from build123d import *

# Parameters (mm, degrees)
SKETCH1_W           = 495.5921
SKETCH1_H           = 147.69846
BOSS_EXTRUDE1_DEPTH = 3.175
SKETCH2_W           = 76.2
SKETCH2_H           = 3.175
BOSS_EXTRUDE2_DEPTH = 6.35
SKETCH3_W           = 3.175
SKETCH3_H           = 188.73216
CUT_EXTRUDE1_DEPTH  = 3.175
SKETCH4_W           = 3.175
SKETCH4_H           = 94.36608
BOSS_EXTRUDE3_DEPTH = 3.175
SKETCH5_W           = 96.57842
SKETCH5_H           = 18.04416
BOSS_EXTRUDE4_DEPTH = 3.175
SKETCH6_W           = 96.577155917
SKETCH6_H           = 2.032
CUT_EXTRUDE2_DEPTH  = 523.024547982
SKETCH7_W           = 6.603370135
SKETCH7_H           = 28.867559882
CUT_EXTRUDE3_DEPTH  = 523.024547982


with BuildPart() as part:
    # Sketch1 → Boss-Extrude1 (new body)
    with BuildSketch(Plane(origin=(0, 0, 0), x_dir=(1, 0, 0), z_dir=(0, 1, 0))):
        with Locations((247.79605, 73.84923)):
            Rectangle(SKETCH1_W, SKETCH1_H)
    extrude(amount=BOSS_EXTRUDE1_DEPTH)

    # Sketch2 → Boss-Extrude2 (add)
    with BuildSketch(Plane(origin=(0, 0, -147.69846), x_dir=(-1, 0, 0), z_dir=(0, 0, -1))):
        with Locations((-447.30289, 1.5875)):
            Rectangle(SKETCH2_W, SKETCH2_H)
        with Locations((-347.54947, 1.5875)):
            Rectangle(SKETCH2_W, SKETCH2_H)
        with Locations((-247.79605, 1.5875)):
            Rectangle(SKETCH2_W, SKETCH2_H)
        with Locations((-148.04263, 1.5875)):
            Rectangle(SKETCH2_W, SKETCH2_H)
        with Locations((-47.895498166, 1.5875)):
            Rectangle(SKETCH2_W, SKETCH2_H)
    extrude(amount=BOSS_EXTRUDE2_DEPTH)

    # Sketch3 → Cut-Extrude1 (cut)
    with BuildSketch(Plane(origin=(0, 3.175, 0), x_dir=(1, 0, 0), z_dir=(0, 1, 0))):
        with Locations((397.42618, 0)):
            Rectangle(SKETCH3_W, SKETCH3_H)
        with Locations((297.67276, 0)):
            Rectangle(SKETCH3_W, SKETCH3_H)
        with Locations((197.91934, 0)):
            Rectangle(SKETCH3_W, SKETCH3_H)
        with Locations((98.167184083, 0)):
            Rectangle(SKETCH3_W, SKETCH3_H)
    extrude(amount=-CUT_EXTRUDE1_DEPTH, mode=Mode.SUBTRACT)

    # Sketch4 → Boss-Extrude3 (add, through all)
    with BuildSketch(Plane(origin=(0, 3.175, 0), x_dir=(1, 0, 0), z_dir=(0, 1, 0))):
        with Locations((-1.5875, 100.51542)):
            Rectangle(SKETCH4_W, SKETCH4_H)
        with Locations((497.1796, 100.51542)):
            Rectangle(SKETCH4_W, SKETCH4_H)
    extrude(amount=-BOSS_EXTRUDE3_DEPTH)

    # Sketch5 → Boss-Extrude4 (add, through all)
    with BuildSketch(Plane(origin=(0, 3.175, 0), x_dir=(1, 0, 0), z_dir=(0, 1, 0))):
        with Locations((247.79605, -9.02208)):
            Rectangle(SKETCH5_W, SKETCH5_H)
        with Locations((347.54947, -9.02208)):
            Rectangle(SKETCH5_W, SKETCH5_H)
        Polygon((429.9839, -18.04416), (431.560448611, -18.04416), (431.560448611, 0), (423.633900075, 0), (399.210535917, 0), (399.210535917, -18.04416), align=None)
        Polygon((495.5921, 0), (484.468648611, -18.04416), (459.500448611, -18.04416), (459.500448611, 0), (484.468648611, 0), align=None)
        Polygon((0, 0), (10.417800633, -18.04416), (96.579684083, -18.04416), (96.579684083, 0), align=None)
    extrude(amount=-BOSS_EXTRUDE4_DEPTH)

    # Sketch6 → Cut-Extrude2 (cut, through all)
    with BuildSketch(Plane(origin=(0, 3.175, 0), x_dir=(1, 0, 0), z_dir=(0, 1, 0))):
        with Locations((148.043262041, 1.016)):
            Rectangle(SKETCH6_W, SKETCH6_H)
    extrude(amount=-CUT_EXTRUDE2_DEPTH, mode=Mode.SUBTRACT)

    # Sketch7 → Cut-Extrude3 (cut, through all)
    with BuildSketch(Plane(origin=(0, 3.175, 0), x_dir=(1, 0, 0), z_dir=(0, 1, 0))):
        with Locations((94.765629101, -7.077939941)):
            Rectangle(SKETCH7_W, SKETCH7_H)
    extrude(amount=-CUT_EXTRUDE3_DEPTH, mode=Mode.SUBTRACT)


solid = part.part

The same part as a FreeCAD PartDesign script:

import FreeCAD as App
import Part
import Sketcher

V = App.Vector
Q = App.Units.Quantity


def add_polygon(sketch, points):
    """Adds a closed chain of lines whose ends are joined by coincident constraints."""
    first, n = sketch.GeometryCount, len(points)
    for a, b in zip(points, points[1:] + points[:1]):
        sketch.addGeometry(Part.LineSegment(App.Vector(*a, 0), App.Vector(*b, 0)), False)
    for i in range(n):
        sketch.addConstraint(Sketcher.Constraint("Coincident", first + i, 2, first + (i + 1) % n, 1))

doc = App.newDocument("Part")
body = doc.addObject("PartDesign::Body", "Body")

sketch1 = body.newObject("Sketcher::SketchObject", "Sketch")
sketch1.AttachmentSupport = (doc.getObject("XZ_Plane"), [""])
sketch1.MapMode = "FlatFace"
add_polygon(sketch1, [(0, -147.69846), (0, 0), (495.5921, 0), (495.5921, -147.69846)])
sketch1.addConstraint(Sketcher.Constraint("Vertical", 0))
sketch1.addConstraint(Sketcher.Constraint("Horizontal", 1))
sketch1.addConstraint(Sketcher.Constraint("Vertical", 2))
sketch1.addConstraint(Sketcher.Constraint("Horizontal", 3))
sketch1.addConstraint(Sketcher.Constraint("Coincident", 0, 2, -1, 1))
sketch1.addConstraint(Sketcher.Constraint("DistanceX", 1, 1, 1, 2, Q("19.5115 in")))
sketch1.addConstraint(Sketcher.Constraint("DistanceY", 0, 1, 0, 2, Q("5.8149 in")))
pad1 = body.newObject("PartDesign::Pad", "Pad")
pad1.Profile = sketch1
pad1.Length = Q("0.125 in")
pad1.Reversed = True

sketch2 = body.newObject("Sketcher::SketchObject", "Sketch001")
sketch2.AttachmentSupport = (doc.getObject("XY_Plane"), [""])
sketch2.MapMode = "FlatFace"
sketch2.AttachmentOffset = App.Placement(V(0, 0, -5.8149 * 25.4), App.Rotation())
add_polygon(sketch2, [(485.40289, 3.175), (485.40289, 0), (409.20289, 0), (409.20289, 3.175)])
add_polygon(sketch2, [(385.64947, 3.175), (385.64947, 0), (309.44947, 0), (309.44947, 3.175)])
add_polygon(sketch2, [(285.89605, 3.175), (285.89605, 0), (209.69605, 0), (209.69605, 3.175)])
add_polygon(sketch2, [(186.14263, 3.175), (186.14263, 0), (109.94263, 0), (109.94263, 3.175)])
add_polygon(sketch2, [(85.995498, 3.175), (85.995498, 0), (9.795498, 0), (9.795498, 3.175)])
sketch2.addConstraint(Sketcher.Constraint("Vertical", 0))
sketch2.addConstraint(Sketcher.Constraint("Horizontal", 1))
sketch2.addConstraint(Sketcher.Constraint("Vertical", 2))
sketch2.addConstraint(Sketcher.Constraint("Horizontal", 3))
sketch2.addConstraint(Sketcher.Constraint("Vertical", 4))
sketch2.addConstraint(Sketcher.Constraint("Horizontal", 5))
sketch2.addConstraint(Sketcher.Constraint("Vertical", 6))
sketch2.addConstraint(Sketcher.Constraint("Horizontal", 7))
sketch2.addConstraint(Sketcher.Constraint("Vertical", 8))
sketch2.addConstraint(Sketcher.Constraint("Horizontal", 9))
sketch2.addConstraint(Sketcher.Constraint("Vertical", 10))
sketch2.addConstraint(Sketcher.Constraint("Horizontal", 11))
sketch2.addConstraint(Sketcher.Constraint("Vertical", 12))
sketch2.addConstraint(Sketcher.Constraint("Horizontal", 13))
sketch2.addConstraint(Sketcher.Constraint("Vertical", 14))
sketch2.addConstraint(Sketcher.Constraint("Horizontal", 15))
sketch2.addConstraint(Sketcher.Constraint("Vertical", 16))
sketch2.addConstraint(Sketcher.Constraint("Horizontal", 17))
sketch2.addConstraint(Sketcher.Constraint("Vertical", 18))
sketch2.addConstraint(Sketcher.Constraint("Horizontal", 19))
sketch2.addConstraint(Sketcher.Constraint("PointOnObject", 0, 2, -1))
sketch2.addConstraint(Sketcher.Constraint("PointOnObject", 4, 2, -1))
sketch2.addConstraint(Sketcher.Constraint("PointOnObject", 8, 2, -1))
sketch2.addConstraint(Sketcher.Constraint("PointOnObject", 12, 2, -1))
sketch2.addConstraint(Sketcher.Constraint("PointOnObject", 16, 2, -1))
sketch2.addConstraint(Sketcher.Constraint("Horizontal", 3, 2, 6, 2))
sketch2.addConstraint(Sketcher.Constraint("Horizontal", 7, 2, 10, 2))
sketch2.addConstraint(Sketcher.Constraint("Horizontal", 11, 2, 14, 2))
sketch2.addConstraint(Sketcher.Constraint("Horizontal", 15, 2, 18, 2))
sketch2.addConstraint(Sketcher.Constraint("Equal", 3, 5))
sketch2.addConstraint(Sketcher.Constraint("Equal", 7, 9))
sketch2.addConstraint(Sketcher.Constraint("Equal", 11, 13))
sketch2.addConstraint(Sketcher.Constraint("Equal", 15, 17))
sketch2.addConstraint(Sketcher.Constraint("DistanceX", 1, 2, 1, 1, Q("3 in")))
sketch2.addConstraint(Sketcher.Constraint("DistanceY", 0, 2, 0, 1, Q("0.125 in")))
sketch2.addConstraint(Sketcher.Constraint("DistanceX", 4, 2, 1, 2, Q("0.9273 in")))
sketch2.addConstraint(Sketcher.Constraint("DistanceX", 8, 2, 5, 2, Q("0.9273 in")))
sketch2.addConstraint(Sketcher.Constraint("DistanceX", 12, 2, 9, 2, Q("0.9273 in")))
sketch2.addConstraint(Sketcher.Constraint("DistanceX", -1, 1, 16, 2, Q("85.995498 mm")))
sketch2.addConstraint(Sketcher.Constraint("DistanceX", -1, 1, 0, 2, Q("485.40289 mm")))
pad2 = body.newObject("PartDesign::Pad", "Pad001")
pad2.Profile = sketch2
pad2.Length = Q("0.25 in")
pad2.Reversed = True

sketch3 = body.newObject("Sketcher::SketchObject", "Sketch002")
sketch3.AttachmentSupport = (doc.getObject("XZ_Plane"), [""])
sketch3.MapMode = "FlatFace"
sketch3.AttachmentOffset = App.Placement(V(0, 0, -0.125 * 25.4), App.Rotation())
add_polygon(sketch3, [(395.83868, -94.36608), (395.83868, 94.36608), (399.01368, 94.36608), (399.01368, -94.36608)])
add_polygon(sketch3, [(296.08526, -94.36608), (296.08526, 94.36608), (299.26026, 94.36608), (299.26026, -94.36608)])
add_polygon(sketch3, [(196.33184, -94.36608), (196.33184, 94.36608), (199.50684, 94.36608), (199.50684, -94.36608)])
add_polygon(sketch3, [(96.579684, -94.36608), (96.579684, 94.36608), (99.754684, 94.36608), (99.754684, -94.36608)])
sketch3.addConstraint(Sketcher.Constraint("Vertical", 0))
sketch3.addConstraint(Sketcher.Constraint("Horizontal", 1))
sketch3.addConstraint(Sketcher.Constraint("Vertical", 2))
sketch3.addConstraint(Sketcher.Constraint("Horizontal", 3))
sketch3.addConstraint(Sketcher.Constraint("Vertical", 4))
sketch3.addConstraint(Sketcher.Constraint("Horizontal", 5))
sketch3.addConstraint(Sketcher.Constraint("Vertical", 6))
sketch3.addConstraint(Sketcher.Constraint("Horizontal", 7))
sketch3.addConstraint(Sketcher.Constraint("Vertical", 8))
sketch3.addConstraint(Sketcher.Constraint("Horizontal", 9))
sketch3.addConstraint(Sketcher.Constraint("Vertical", 10))
sketch3.addConstraint(Sketcher.Constraint("Horizontal", 11))
sketch3.addConstraint(Sketcher.Constraint("Vertical", 12))
sketch3.addConstraint(Sketcher.Constraint("Horizontal", 13))
sketch3.addConstraint(Sketcher.Constraint("Vertical", 14))
sketch3.addConstraint(Sketcher.Constraint("Horizontal", 15))
sketch3.addConstraint(Sketcher.Constraint("Horizontal", 1, 2, 4, 2))
sketch3.addConstraint(Sketcher.Constraint("Horizontal", 3, 2, 6, 2))
sketch3.addConstraint(Sketcher.Constraint("Horizontal", 5, 2, 8, 2))
sketch3.addConstraint(Sketcher.Constraint("Horizontal", 7, 2, 10, 2))
sketch3.addConstraint(Sketcher.Constraint("Horizontal", 9, 2, 12, 2))
sketch3.addConstraint(Sketcher.Constraint("Horizontal", 11, 2, 14, 2))
sketch3.addConstraint(Sketcher.Constraint("Equal", 3, 5))
sketch3.addConstraint(Sketcher.Constraint("Equal", 7, 9))
sketch3.addConstraint(Sketcher.Constraint("Equal", 11, 13))
sketch3.addConstraint(Sketcher.Constraint("DistanceX", 1, 1, 1, 2, Q("0.125 in")))
sketch3.addConstraint(Sketcher.Constraint("DistanceY", 0, 1, 0, 2, Q("7.4304 in")))
sketch3.addConstraint(Sketcher.Constraint("DistanceX", -1, 1, 0, 2, Q("15.5842 in")))
sketch3.addConstraint(Sketcher.Constraint("DistanceY", -1, 1, 0, 2, Q("3.7152 in")))
sketch3.addConstraint(Sketcher.Constraint("DistanceX", -1, 1, 4, 2, Q("11.6569 in")))
sketch3.addConstraint(Sketcher.Constraint("DistanceX", -1, 1, 8, 2, Q("7.7296 in")))
sketch3.addConstraint(Sketcher.Constraint("DistanceX", -1, 1, 12, 2, Q("96.579684 mm")))
pocket1 = body.newObject("PartDesign::Pocket", "Pocket")
pocket1.Profile = sketch3
pocket1.Length = Q("0.125 in")
pocket1.Reversed = True

sketch4 = body.newObject("Sketcher::SketchObject", "Sketch003")
sketch4.AttachmentSupport = (doc.getObject("XZ_Plane"), [""])
sketch4.MapMode = "FlatFace"
sketch4.AttachmentOffset = App.Placement(V(0, 0, -0.125 * 25.4), App.Rotation())
add_polygon(sketch4, [(-3.175, -147.69846), (-3.175, -53.33238), (0, -53.33238), (0, -147.69846)])
add_polygon(sketch4, [(495.5921, -147.69846), (495.5921, -53.33238), (498.7671, -53.33238), (498.7671, -147.69846)])
sketch4.addConstraint(Sketcher.Constraint("Vertical", 0))
sketch4.addConstraint(Sketcher.Constraint("Horizontal", 1))
sketch4.addConstraint(Sketcher.Constraint("Vertical", 2))
sketch4.addConstraint(Sketcher.Constraint("Horizontal", 3))
sketch4.addConstraint(Sketcher.Constraint("Vertical", 4))
sketch4.addConstraint(Sketcher.Constraint("Horizontal", 5))
sketch4.addConstraint(Sketcher.Constraint("Vertical", 6))
sketch4.addConstraint(Sketcher.Constraint("Horizontal", 7))
sketch4.addConstraint(Sketcher.Constraint("PointOnObject", 1, 2, -2))
sketch4.addConstraint(Sketcher.Constraint("Horizontal", 1, 2, 4, 2))
sketch4.addConstraint(Sketcher.Constraint("Horizontal", 3, 2, 6, 2))
sketch4.addConstraint(Sketcher.Constraint("Equal", 3, 5))
sketch4.addConstraint(Sketcher.Constraint("DistanceX", 1, 1, 1, 2, Q("0.125 in")))
sketch4.addConstraint(Sketcher.Constraint("DistanceY", 0, 1, 0, 2, Q("3.7152 in")))
sketch4.addConstraint(Sketcher.Constraint("DistanceY", 0, 2, -1, 1, Q("2.0997 in")))
sketch4.addConstraint(Sketcher.Constraint("DistanceX", -1, 1, 4, 2, Q("19.5115 in")))
pad3 = body.newObject("PartDesign::Pad", "Pad002")
pad3.Profile = sketch4
pad3.Type = "UpToLast"

sketch5 = body.newObject("Sketcher::SketchObject", "Sketch004")
sketch5.AttachmentSupport = (doc.getObject("XZ_Plane"), [""])
sketch5.MapMode = "FlatFace"
sketch5.AttachmentOffset = App.Placement(V(0, 0, -0.125 * 25.4), App.Rotation())
add_polygon(sketch5, [(199.50684, 0), (199.50684, 18.04416), (296.08526, 18.04416), (296.08526, 0)])
add_polygon(sketch5, [(299.26026, 0), (299.26026, 18.04416), (395.83868, 18.04416), (395.83868, 0)])
add_polygon(sketch5, [(431.560449, 18.04416), (431.560449, 0), (399.210536, 0), (399.210536, 18.04416)])
add_polygon(sketch5, [(484.468649, 18.04416), (495.5921, 0), (459.500449, 0), (459.500449, 18.04416)])
add_polygon(sketch5, [(0, 0), (10.417801, 18.04416), (96.579684, 18.04416), (96.579684, 0)])
sketch5.addConstraint(Sketcher.Constraint("Vertical", 0))
sketch5.addConstraint(Sketcher.Constraint("Horizontal", 1))
sketch5.addConstraint(Sketcher.Constraint("Vertical", 2))
sketch5.addConstraint(Sketcher.Constraint("Horizontal", 3))
sketch5.addConstraint(Sketcher.Constraint("Vertical", 4))
sketch5.addConstraint(Sketcher.Constraint("Horizontal", 5))
sketch5.addConstraint(Sketcher.Constraint("Vertical", 6))
sketch5.addConstraint(Sketcher.Constraint("Horizontal", 7))
sketch5.addConstraint(Sketcher.Constraint("Vertical", 8))
sketch5.addConstraint(Sketcher.Constraint("Horizontal", 9))
sketch5.addConstraint(Sketcher.Constraint("Vertical", 10))
sketch5.addConstraint(Sketcher.Constraint("Horizontal", 11))
sketch5.addConstraint(Sketcher.Constraint("Horizontal", 13))
sketch5.addConstraint(Sketcher.Constraint("Vertical", 14))
sketch5.addConstraint(Sketcher.Constraint("Horizontal", 15))
sketch5.addConstraint(Sketcher.Constraint("Horizontal", 17))
sketch5.addConstraint(Sketcher.Constraint("Vertical", 18))
sketch5.addConstraint(Sketcher.Constraint("Horizontal", 19))
sketch5.addConstraint(Sketcher.Constraint("Coincident", 19, 2, -1, 1))
sketch5.addConstraint(Sketcher.Constraint("PointOnObject", 2, 2, -1))
sketch5.addConstraint(Sketcher.Constraint("PointOnObject", 6, 2, -1))
sketch5.addConstraint(Sketcher.Constraint("PointOnObject", 8, 2, -1))
sketch5.addConstraint(Sketcher.Constraint("PointOnObject", 12, 2, -1))
sketch5.addConstraint(Sketcher.Constraint("Horizontal", 1, 2, 4, 2))
sketch5.addConstraint(Sketcher.Constraint("Horizontal", 5, 2, 10, 2))
sketch5.addConstraint(Sketcher.Constraint("Horizontal", 11, 2, 14, 2))
sketch5.addConstraint(Sketcher.Constraint("Horizontal", 15, 2, 16, 2))
sketch5.addConstraint(Sketcher.Constraint("Equal", 3, 5))
sketch5.addConstraint(Sketcher.Constraint("Angle", 16, Q("60 deg")))
sketch5.addConstraint(Sketcher.Constraint("DistanceX", 8, 2, 13, 2, Q("1.1 in")))
sketch5.addConstraint(Sketcher.Constraint("DistanceX", 15, 1, 15, 2, Q("0.983 in")))
sketch5.addConstraint(Sketcher.Constraint("DistanceX", 1, 1, 1, 2, Q("3.8023 in")))
sketch5.addConstraint(Sketcher.Constraint("DistanceX", 17, 1, 17, 2, Q("3.3922001 in")))
sketch5.addConstraint(Sketcher.Constraint("DistanceY", 0, 1, 0, 2, Q("0.7104 in")))
sketch5.addConstraint(Sketcher.Constraint("DistanceX", 1, 2, 4, 2, Q("0.125 in")))
sketch5.addConstraint(Sketcher.Constraint("DistanceX", -1, 1, 0, 2, Q("7.8546 in")))
sketch5.addConstraint(Sketcher.Constraint("DistanceX", -1, 1, 12, 2, Q("19.5115 in")))
sketch5.addConstraint(Sketcher.Constraint("DistanceX", 13, 2, 13, 1, Q("36.091651 mm")))
sketch5.addConstraint(Sketcher.Constraint("DistanceX", 9, 2, 9, 1, Q("32.349913 mm")))
pad4 = body.newObject("PartDesign::Pad", "Pad003")
pad4.Profile = sketch5
pad4.Length = Q("0.125 in")

sketch6 = body.newObject("Sketcher::SketchObject", "Sketch005")
sketch6.AttachmentSupport = (doc.getObject("XZ_Plane"), [""])
sketch6.MapMode = "FlatFace"
sketch6.AttachmentOffset = App.Placement(V(0, 0, -0.125 * 25.4), App.Rotation())
add_polygon(sketch6, [(99.754684, -2.032), (99.754684, 0), (196.33184, 0), (196.33184, -2.032)])
sketch6.addConstraint(Sketcher.Constraint("Vertical", 0))
sketch6.addConstraint(Sketcher.Constraint("Horizontal", 1))
sketch6.addConstraint(Sketcher.Constraint("Vertical", 2))
sketch6.addConstraint(Sketcher.Constraint("Horizontal", 3))
sketch6.addConstraint(Sketcher.Constraint("PointOnObject", 0, 2, -1))
sketch6.addConstraint(Sketcher.Constraint("DistanceY", 0, 1, 0, 2, Q("0.08 in")))
sketch6.addConstraint(Sketcher.Constraint("DistanceX", -1, 1, 1, 2, Q("7.7296 in")))
sketch6.addConstraint(Sketcher.Constraint("DistanceX", 1, 1, 1, 2, Q("96.577156 mm")))
pocket2 = body.newObject("PartDesign::Pocket", "Pocket001")
pocket2.Profile = sketch6
pocket2.Type = "ThroughAll"
pocket2.Reversed = True

sketch7 = body.newObject("Sketcher::SketchObject", "Sketch006")
sketch7.AttachmentSupport = (doc.getObject("XZ_Plane"), [""])
sketch7.MapMode = "FlatFace"
sketch7.AttachmentOffset = App.Placement(V(0, 0, -0.125 * 25.4), App.Rotation())
add_polygon(sketch7, [(91.463944, -7.35584), (91.463944, 21.51172), (98.067314, 21.51172), (98.067314, -7.35584)])
sketch7.addConstraint(Sketcher.Constraint("Vertical", 0))
sketch7.addConstraint(Sketcher.Constraint("Horizontal", 1))
sketch7.addConstraint(Sketcher.Constraint("Vertical", 2))
sketch7.addConstraint(Sketcher.Constraint("Horizontal", 3))
sketch7.addConstraint(Sketcher.Constraint("DistanceY", 2, 2, -1, 1, Q("0.2896 in")))
sketch7.addConstraint(Sketcher.Constraint("DistanceX", 1, 1, 1, 2, Q("6.60337 mm")))
sketch7.addConstraint(Sketcher.Constraint("DistanceY", 0, 1, 0, 2, Q("28.86756 mm")))
sketch7.addConstraint(Sketcher.Constraint("DistanceX", -1, 1, 0, 2, Q("91.463944 mm")))
pocket3 = body.newObject("PartDesign::Pocket", "Pocket002")
pocket3.Profile = sketch7
pocket3.Type = "ThroughAll"
pocket3.Reversed = True

doc.recompute()
